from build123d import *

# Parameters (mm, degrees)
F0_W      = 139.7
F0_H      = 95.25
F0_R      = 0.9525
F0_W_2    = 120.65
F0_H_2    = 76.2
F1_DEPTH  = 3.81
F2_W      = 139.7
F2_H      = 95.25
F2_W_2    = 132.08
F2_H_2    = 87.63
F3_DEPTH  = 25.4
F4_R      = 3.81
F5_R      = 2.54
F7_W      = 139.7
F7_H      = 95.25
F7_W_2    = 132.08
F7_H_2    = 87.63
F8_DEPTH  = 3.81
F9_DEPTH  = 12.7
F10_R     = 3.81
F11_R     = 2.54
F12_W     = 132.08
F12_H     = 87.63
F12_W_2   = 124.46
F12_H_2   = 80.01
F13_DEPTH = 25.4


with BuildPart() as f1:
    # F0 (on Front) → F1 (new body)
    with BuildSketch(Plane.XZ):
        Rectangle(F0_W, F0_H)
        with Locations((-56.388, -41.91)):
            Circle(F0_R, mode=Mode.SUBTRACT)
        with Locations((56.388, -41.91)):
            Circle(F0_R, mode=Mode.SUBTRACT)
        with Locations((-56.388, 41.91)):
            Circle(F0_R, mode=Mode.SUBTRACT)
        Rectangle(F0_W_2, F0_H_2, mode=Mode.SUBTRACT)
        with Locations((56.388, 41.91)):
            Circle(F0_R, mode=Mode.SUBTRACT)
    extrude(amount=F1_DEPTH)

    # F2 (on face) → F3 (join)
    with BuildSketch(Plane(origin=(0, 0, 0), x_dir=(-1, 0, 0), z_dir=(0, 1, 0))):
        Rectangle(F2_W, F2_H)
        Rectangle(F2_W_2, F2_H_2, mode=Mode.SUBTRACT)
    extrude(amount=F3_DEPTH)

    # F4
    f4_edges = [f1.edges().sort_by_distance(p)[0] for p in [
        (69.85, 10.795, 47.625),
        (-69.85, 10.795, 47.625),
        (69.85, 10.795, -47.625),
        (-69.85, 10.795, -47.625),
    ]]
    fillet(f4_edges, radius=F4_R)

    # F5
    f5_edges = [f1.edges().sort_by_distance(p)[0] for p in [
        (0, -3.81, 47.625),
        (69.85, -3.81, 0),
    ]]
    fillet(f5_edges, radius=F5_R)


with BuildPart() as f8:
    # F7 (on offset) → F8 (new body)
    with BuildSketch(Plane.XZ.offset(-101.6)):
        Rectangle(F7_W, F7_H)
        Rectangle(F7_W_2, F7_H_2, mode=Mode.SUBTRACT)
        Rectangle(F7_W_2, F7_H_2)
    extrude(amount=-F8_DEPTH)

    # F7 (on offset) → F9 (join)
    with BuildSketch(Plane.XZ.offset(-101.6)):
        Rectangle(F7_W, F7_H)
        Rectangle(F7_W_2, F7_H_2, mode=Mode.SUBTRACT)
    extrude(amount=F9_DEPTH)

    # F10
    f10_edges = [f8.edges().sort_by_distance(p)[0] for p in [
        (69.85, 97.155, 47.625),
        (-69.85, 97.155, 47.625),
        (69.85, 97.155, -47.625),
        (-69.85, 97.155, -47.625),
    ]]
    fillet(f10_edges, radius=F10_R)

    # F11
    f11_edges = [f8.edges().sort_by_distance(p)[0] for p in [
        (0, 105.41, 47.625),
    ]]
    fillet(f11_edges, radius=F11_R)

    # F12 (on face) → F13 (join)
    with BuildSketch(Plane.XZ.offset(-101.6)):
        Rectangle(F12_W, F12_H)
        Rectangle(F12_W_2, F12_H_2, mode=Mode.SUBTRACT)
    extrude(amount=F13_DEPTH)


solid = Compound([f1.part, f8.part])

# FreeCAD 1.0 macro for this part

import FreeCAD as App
import Part
import Sketcher
Q = App.Units.Quantity


def edges_at(feature, points):
    """Names of the edges that pass closest to the given points."""
    edges = feature.Shape.Edges
    near = lambda p: min(range(len(edges)), key=lambda i: edges[i].distToShape(Part.Vertex(*p))[0])
    return sorted({f"Edge{near(p) + 1}" for p in points})


def add_polygon(sketch, points):
    """Adds a closed chain of lines whose ends are joined by coincident constraints."""
    first, n = sketch.GeometryCount, len(points)
    for a, b in zip(points, points[1:] + points[:1]):
        sketch.addGeometry(Part.LineSegment(App.Vector(*a, 0), App.Vector(*b, 0)), False)
    for i in range(n):
        sketch.addConstraint(Sketcher.Constraint("Coincident", first + i, 2, first + (i + 1) % n, 1))

doc = App.newDocument("Part")
body = doc.addObject("PartDesign::Body", "Body")

# Sketch on XZ plane
sketch1 = body.newObject("Sketcher::SketchObject", "Sketch")
sketch1.AttachmentSupport = (doc.getObject("XZ_Plane"), [""])
sketch1.MapMode = "FlatFace"
add_polygon(sketch1, [(-69.85, 47.625), (-69.85, -47.625), (69.85, -47.625), (69.85, 47.625)])  # lines 0-3
sketch1.addGeometry(Part.Circle(App.Vector(-56.388, -41.91, 0), App.Vector(0, 0, 1), 0.9525), False)  # 4
sketch1.addGeometry(Part.Circle(App.Vector(56.388, -41.91, 0), App.Vector(0, 0, 1), 0.9525), False)  # 5
sketch1.addGeometry(Part.Circle(App.Vector(-56.388, 41.91, 0), App.Vector(0, 0, 1), 0.9525), False)  # 6
add_polygon(sketch1, [(60.325, -38.1), (-60.325, -38.1), (-60.325, 38.1), (60.325, 38.1)])  # lines 7-10
sketch1.addGeometry(Part.Circle(App.Vector(56.388, 41.91, 0), App.Vector(0, 0, 1), 0.9525), False)  # 11
sketch1.addConstraint([
    Sketcher.Constraint("Vertical", 0),
    Sketcher.Constraint("Horizontal", 1),
    Sketcher.Constraint("Vertical", 2),
    Sketcher.Constraint("Horizontal", 3),
    Sketcher.Constraint("Horizontal", 7),
    Sketcher.Constraint("Vertical", 8),
    Sketcher.Constraint("Horizontal", 9),
    Sketcher.Constraint("Vertical", 10),
    Sketcher.Constraint("Equal", 4, 5),
    Sketcher.Constraint("Equal", 5, 6),
    Sketcher.Constraint("Equal", 6, 11),
    Sketcher.Constraint("Symmetric", 5, 3, 6, 3, -1, 1),
    Sketcher.Constraint("Symmetric", 4, 3, 11, 3, -1, 1),
    Sketcher.Constraint("Symmetric", 0, 2, 2, 2, -1, 1),
    Sketcher.Constraint("Symmetric", 7, 2, 9, 2, -1, 1),
    Sketcher.Constraint("Symmetric", 4, 3, 5, 3, -2),
    Sketcher.Constraint("DistanceY", 8, 1, 8, 2, Q("3 in")),
    Sketcher.Constraint("Diameter", 4, Q("0.075 in")),
    Sketcher.Constraint("DistanceX", 1, 1, 1, 2, Q("5.5 in")),
    Sketcher.Constraint("DistanceX", 7, 2, 7, 1, Q("4.75 in")),
    Sketcher.Constraint("DistanceY", 0, 2, 0, 1, Q("3.75 in")),
    Sketcher.Constraint("DistanceY", 4, 3, 6, 3, Q("3.3 in")),
    Sketcher.Constraint("DistanceX", 4, 3, -1, 1, Q("2.22 in")),
])
pad1 = body.newObject("PartDesign::Pad", "Pad")
pad1.Profile = sketch1
pad1.Length = Q("0.15 in")

# Sketch on XZ plane
sketch2 = body.newObject("Sketcher::SketchObject", "Sketch001")
sketch2.AttachmentSupport = (doc.getObject("XZ_Plane"), [""])
sketch2.MapMode = "FlatFace"
add_polygon(sketch2, [(69.85, 47.625), (69.85, -47.625), (-69.85, -47.625), (-69.85, 47.625)])  # lines 0-3
add_polygon(sketch2, [(-66.04, -43.815), (66.04, -43.815), (66.04, 43.815), (-66.04, 43.815)])  # lines 4-7
sketch2.addConstraint([
    Sketcher.Constraint("Vertical", 0),
    Sketcher.Constraint("Horizontal", 1),
    Sketcher.Constraint("Vertical", 2),
    Sketcher.Constraint("Horizontal", 3),
    Sketcher.Constraint("Horizontal", 4),
    Sketcher.Constraint("Vertical", 5),
    Sketcher.Constraint("Horizontal", 6),
    Sketcher.Constraint("Vertical", 7),
    Sketcher.Constraint("Symmetric", 0, 2, 2, 2, -1, 1),
    Sketcher.Constraint("Symmetric", 4, 2, 6, 2, -1, 1),
    Sketcher.Constraint("DistanceX", 1, 2, 1, 1, Q("5.5 in")),
    Sketcher.Constraint("DistanceX", 4, 1, 4, 2, Q("5.2 in")),
    Sketcher.Constraint("DistanceY", 0, 2, 0, 1, Q("3.75 in")),
    Sketcher.Constraint("DistanceY", 5, 1, 5, 2, Q("3.45 in")),
])
pad2 = body.newObject("PartDesign::Pad", "Pad001")
pad2.Profile = sketch2
pad2.Length = Q("1 in")
pad2.Reversed = True
doc.recompute()

fillet = body.newObject("PartDesign::Fillet", "Fillet")
fillet.Base = (pad2, edges_at(pad2, [
    (69.85, 10.795, 47.625),
    (-69.85, 10.795, 47.625),
    (69.85, 10.795, -47.625),
    (-69.85, 10.795, -47.625),
]))
fillet.Radius = Q("0.15 in")
doc.recompute()

fillet2 = body.newObject("PartDesign::Fillet", "Fillet001")
fillet2.Base = (fillet, edges_at(fillet, [(0, -3.81, 47.625), (69.85, -3.81, 0)]))
fillet2.Radius = Q("0.1 in")
body2 = doc.addObject("PartDesign::Body", "Body001")

# Sketch on XZ plane
sketch3 = body2.newObject("Sketcher::SketchObject", "Sketch002")
sketch3.AttachmentSupport = (doc.getObject("XZ_Plane001"), [""])
sketch3.MapMode = "FlatFace"
sketch3.AttachmentOffset = App.Placement(App.Vector(0, 0, -4 * 25.4), App.Rotation())
add_polygon(sketch3, [(-69.85, 47.625), (-69.85, -47.625), (69.85, -47.625), (69.85, 47.625)])  # lines 0-3
sketch3.addConstraint([
    Sketcher.Constraint("Vertical", 0),
    Sketcher.Constraint("Horizontal", 1),
    Sketcher.Constraint("Vertical", 2),
    Sketcher.Constraint("Horizontal", 3),
    Sketcher.Constraint("Symmetric", 0, 2, 2, 2, -1, 1),
    Sketcher.Constraint("DistanceX", 1, 1, 1, 2, Q("5.5 in")),
    Sketcher.Constraint("DistanceY", 0, 2, 0, 1, Q("3.75 in")),
])
pad3 = body2.newObject("PartDesign::Pad", "Pad002")
pad3.Profile = sketch3
pad3.Length = Q("0.15 in")
pad3.Reversed = True

# Sketch on XZ plane
sketch4 = body2.newObject("Sketcher::SketchObject", "Sketch003")
sketch4.AttachmentSupport = (doc.getObject("XZ_Plane001"), [""])
sketch4.MapMode = "FlatFace"
sketch4.AttachmentOffset = App.Placement(App.Vector(0, 0, -4 * 25.4), App.Rotation())
add_polygon(sketch4, [(-69.85, 47.625), (-69.85, -47.625), (69.85, -47.625), (69.85, 47.625)])  # lines 0-3
add_polygon(sketch4, [(66.04, -43.815), (-66.04, -43.815), (-66.04, 43.815), (66.04, 43.815)])  # lines 4-7
sketch4.addConstraint([
    Sketcher.Constraint("Vertical", 0),
    Sketcher.Constraint("Horizontal", 1),
    Sketcher.Constraint("Vertical", 2),
    Sketcher.Constraint("Horizontal", 3),
    Sketcher.Constraint("Horizontal", 4),
    Sketcher.Constraint("Vertical", 5),
    Sketcher.Constraint("Horizontal", 6),
    Sketcher.Constraint("Vertical", 7),
    Sketcher.Constraint("Symmetric", 0, 2, 2, 2, -1, 1),
    Sketcher.Constraint("Symmetric", 4, 2, 6, 2, -1, 1),
    Sketcher.Constraint("DistanceX", 1, 1, 1, 2, Q("5.5 in")),
    Sketcher.Constraint("DistanceX", 4, 2, 4, 1, Q("5.2 in")),
    Sketcher.Constraint("DistanceY", 0, 2, 0, 1, Q("3.75 in")),
    Sketcher.Constraint("DistanceY", 5, 1, 5, 2, Q("3.45 in")),
])
pad4 = body2.newObject("PartDesign::Pad", "Pad003")
pad4.Profile = sketch4
pad4.Length = Q("0.5 in")
doc.recompute()

fillet3 = body2.newObject("PartDesign::Fillet", "Fillet002")
fillet3.Base = (pad4, edges_at(pad4, [
    (69.85, 97.155, 47.625),
    (-69.85, 97.155, 47.625),
    (69.85, 97.155, -47.625),
    (-69.85, 97.155, -47.625),
]))
fillet3.Radius = Q("0.15 in")
doc.recompute()

fillet4 = body2.newObject("PartDesign::Fillet", "Fillet003")
fillet4.Base = (fillet3, edges_at(fillet3, [(0, 105.41, 47.625)]))
fillet4.Radius = Q("0.1 in")

# Sketch on XZ plane
sketch5 = body2.newObject("Sketcher::SketchObject", "Sketch004")
sketch5.AttachmentSupport = (doc.getObject("XZ_Plane001"), [""])
sketch5.MapMode = "FlatFace"
sketch5.AttachmentOffset = App.Placement(App.Vector(0, 0, -4 * 25.4), App.Rotation())
add_polygon(sketch5, [(-66.04, 43.815), (-66.04, -43.815), (66.04, -43.815), (66.04, 43.815)])  # lines 0-3
add_polygon(sketch5, [(62.23, -40.005), (-62.23, -40.005), (-62.23, 40.005), (62.23, 40.005)])  # lines 4-7
sketch5.addConstraint([
    Sketcher.Constraint("Vertical", 0),
    Sketcher.Constraint("Horizontal", 1),
    Sketcher.Constraint("Vertical", 2),
    Sketcher.Constraint("Horizontal", 3),
    Sketcher.Constraint("Horizontal", 4),
    Sketcher.Constraint("Vertical", 5),
    Sketcher.Constraint("Horizontal", 6),
    Sketcher.Constraint("Vertical", 7),
    Sketcher.Constraint("Symmetric", 0, 2, 2, 2, -1, 1),
    Sketcher.Constraint("Symmetric", 4, 2, 6, 2, -1, 1),
    Sketcher.Constraint("DistanceX", 1, 1, 1, 2, Q("5.2 in")),
    Sketcher.Constraint("DistanceX", 4, 2, 4, 1, Q("4.9 in")),
    Sketcher.Constraint("DistanceY", 0, 2, 0, 1, Q("3.45 in")),
    Sketcher.Constraint("DistanceY", 5, 1, 5, 2, Q("3.15 in")),
])
pad5 = body2.newObject("PartDesign::Pad", "Pad004")
pad5.Profile = sketch5
pad5.Length = Q("1 in")

doc.recompute()
